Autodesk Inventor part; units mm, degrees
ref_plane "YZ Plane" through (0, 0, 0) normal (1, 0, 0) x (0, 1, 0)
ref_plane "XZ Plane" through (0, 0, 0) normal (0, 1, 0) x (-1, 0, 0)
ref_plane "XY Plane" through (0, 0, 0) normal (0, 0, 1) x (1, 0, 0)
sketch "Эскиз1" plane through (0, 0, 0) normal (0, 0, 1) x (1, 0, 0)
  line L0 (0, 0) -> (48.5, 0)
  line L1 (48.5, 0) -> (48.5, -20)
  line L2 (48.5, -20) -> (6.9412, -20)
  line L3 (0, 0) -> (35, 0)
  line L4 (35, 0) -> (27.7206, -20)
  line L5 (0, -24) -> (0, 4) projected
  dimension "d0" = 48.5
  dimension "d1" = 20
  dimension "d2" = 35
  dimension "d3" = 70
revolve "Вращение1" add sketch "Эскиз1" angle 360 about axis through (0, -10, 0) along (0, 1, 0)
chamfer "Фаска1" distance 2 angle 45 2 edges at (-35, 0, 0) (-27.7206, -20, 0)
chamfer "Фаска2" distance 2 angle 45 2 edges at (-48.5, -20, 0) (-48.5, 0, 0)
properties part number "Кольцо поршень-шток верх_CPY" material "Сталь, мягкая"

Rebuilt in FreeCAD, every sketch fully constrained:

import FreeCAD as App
import Part
import Sketcher
from FreeCAD import Vector
Q = App.Units.Quantity


def edges_at(feature, points):
    """Names of the edges that pass closest to the given points."""
    edges = feature.Shape.Edges
    near = lambda p: min(range(len(edges)), key=lambda i: edges[i].distToShape(Part.Vertex(*p))[0])
    return sorted({f"Edge{near(p) + 1}" for p in points})


def add_polygon(sketch, points):
    """Adds a closed chain of lines whose ends are joined by coincident constraints."""
    first, n = sketch.GeometryCount, len(points)
    for a, b in zip(points, points[1:] + points[:1]):
        sketch.addGeometry(Part.LineSegment(App.Vector(*a, 0), App.Vector(*b, 0)), False)
    for i in range(n):
        sketch.addConstraint(Sketcher.Constraint("Coincident", first + i, 2, first + (i + 1) % n, 1))

doc = App.newDocument("Part")
body = doc.addObject("PartDesign::Body", "Body")

sketch1 = doc.addObject("Sketcher::SketchObject", "Sketch")
body.addObject(sketch1)
sketch1.AttachmentSupport = (doc.XY_Plane, [""])
sketch1.MapMode = "FlatFace"
add_polygon(sketch1, [(48, 0), (35, 0), (28, -20), (48, -20)])
sketch1.addConstraint([
    Sketcher.Constraint("Horizontal", 0),
    Sketcher.Constraint("Horizontal", 2),
    Sketcher.Constraint("Vertical", 3),
    Sketcher.Constraint("PointOnObject", 0, 2, -1),
    Sketcher.Constraint("DistanceY", 3, 1, 3, 2, 20.0),
    Sketcher.Constraint("DistanceX", -1, 1, 0, 2, 35.0),
    Sketcher.Constraint("DistanceX", -1, 1, 2, 2, 48.5),
    Sketcher.Constraint("Angle", 1, Q("-110 deg")),
])
revolution = doc.addObject("PartDesign::Revolution", "Revolution")
body.addObject(revolution)
revolution.Profile = sketch1
revolution.ReferenceAxis = (sketch1, ["V_Axis"])
revolution.Angle = 360
doc.recompute()

chamfer = doc.addObject("PartDesign::Chamfer", "Chamfer")
body.addObject(chamfer)
chamfer.Base = (revolution, edges_at(revolution, [(-35, 0, 0), (-27.721, -20, 0)]))
chamfer.Size = 2
doc.recompute()

chamfer2 = doc.addObject("PartDesign::Chamfer", "Chamfer001")
body.addObject(chamfer2)
chamfer2.Base = (chamfer, edges_at(chamfer, [(-48.5, -20, 0), (-48.5, 0, 0)]))
chamfer2.Size = 2

doc.recompute()
